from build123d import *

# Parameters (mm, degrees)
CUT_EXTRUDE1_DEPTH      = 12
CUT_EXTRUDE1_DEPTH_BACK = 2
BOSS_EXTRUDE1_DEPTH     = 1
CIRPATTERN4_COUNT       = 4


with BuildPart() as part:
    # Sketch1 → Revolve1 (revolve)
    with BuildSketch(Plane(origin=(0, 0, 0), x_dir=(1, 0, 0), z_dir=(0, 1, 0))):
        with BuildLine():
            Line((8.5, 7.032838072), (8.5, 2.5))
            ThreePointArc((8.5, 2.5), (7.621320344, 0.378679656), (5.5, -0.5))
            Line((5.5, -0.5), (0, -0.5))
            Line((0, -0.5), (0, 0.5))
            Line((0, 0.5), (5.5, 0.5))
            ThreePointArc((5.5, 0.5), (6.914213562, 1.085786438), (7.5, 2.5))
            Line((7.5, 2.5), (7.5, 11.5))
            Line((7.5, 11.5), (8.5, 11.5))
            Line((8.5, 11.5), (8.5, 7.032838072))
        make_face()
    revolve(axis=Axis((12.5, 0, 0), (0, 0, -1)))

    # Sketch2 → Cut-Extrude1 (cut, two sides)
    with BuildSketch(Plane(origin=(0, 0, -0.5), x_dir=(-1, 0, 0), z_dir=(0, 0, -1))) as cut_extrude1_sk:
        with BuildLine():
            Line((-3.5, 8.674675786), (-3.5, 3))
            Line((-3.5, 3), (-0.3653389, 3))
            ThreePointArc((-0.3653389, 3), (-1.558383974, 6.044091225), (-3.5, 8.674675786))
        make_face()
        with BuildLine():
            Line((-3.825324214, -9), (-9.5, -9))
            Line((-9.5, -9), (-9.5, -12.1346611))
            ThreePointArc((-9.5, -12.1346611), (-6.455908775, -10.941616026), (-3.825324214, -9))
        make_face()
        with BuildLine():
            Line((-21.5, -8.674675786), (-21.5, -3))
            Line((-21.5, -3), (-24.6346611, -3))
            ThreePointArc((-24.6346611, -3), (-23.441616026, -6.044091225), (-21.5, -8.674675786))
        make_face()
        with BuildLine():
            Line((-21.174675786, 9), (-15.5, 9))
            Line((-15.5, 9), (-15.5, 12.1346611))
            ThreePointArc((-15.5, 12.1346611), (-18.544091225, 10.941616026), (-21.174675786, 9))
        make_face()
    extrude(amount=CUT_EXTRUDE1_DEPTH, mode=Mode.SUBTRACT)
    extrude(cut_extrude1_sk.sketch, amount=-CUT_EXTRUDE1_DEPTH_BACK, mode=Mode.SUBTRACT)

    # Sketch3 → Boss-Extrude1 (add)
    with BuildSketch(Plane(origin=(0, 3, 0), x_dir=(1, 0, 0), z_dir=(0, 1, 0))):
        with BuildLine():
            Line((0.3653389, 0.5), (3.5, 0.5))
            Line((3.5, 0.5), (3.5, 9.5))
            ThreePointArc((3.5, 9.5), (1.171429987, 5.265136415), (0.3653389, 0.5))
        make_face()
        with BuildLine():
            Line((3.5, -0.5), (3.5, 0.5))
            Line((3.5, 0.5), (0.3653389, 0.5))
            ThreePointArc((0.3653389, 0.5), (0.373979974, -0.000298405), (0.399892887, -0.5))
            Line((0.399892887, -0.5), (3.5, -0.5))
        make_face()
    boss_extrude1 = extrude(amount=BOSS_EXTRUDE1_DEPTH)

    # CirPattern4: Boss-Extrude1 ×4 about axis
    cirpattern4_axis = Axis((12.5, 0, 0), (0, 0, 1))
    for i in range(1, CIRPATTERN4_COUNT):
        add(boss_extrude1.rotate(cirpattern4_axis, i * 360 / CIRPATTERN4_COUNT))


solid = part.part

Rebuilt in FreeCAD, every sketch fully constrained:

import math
import FreeCAD as App
import Part
import Sketcher
Q = App.Units.Quantity

doc = App.newDocument("Part")
body = doc.addObject("PartDesign::Body", "Body")

# Sketch on XZ plane
sketch1 = body.newObject("Sketcher::SketchObject", "Sketch")
sketch1.AttachmentSupport = (doc.getObject("XZ_Plane"), [""])
sketch1.MapMode = "FlatFace"
sketch1.addGeometry([
    Part.ArcOfCircle(Part.Circle(App.Vector(5.5, -2.5, 0), App.Vector(0, 0, 1), 3), math.radians(0), math.radians(90)),  # 0
    Part.LineSegment(App.Vector(8.5, -2.5, 0), App.Vector(8.5, -11.5, 0)),  # 1
    Part.LineSegment(App.Vector(8.5, -11.5, 0), App.Vector(7.5, -11.5, 0)),  # 2
    Part.LineSegment(App.Vector(7.5, -11.5, 0), App.Vector(7.5, -2.5, 0)),  # 3
    Part.ArcOfCircle(Part.Circle(App.Vector(5.5, -2.5, 0), App.Vector(0, 0, 1), 2), math.radians(0), math.radians(90)),  # 4
    Part.LineSegment(App.Vector(5.5, -0.5, 0), App.Vector(0, -0.5, 0)),  # 5
    Part.LineSegment(App.Vector(0, -0.5, 0), App.Vector(0, 0.5, 0)),  # 6
    Part.LineSegment(App.Vector(0, 0.5, 0), App.Vector(5.5, 0.5, 0)),  # 7
], False)
sketch1.addGeometry(Part.LineSegment(App.Vector(12.5, 0.5, 0), App.Vector(12.5, -11.5, 0)), True)  # axis
sketch1.addConstraint([
    Sketcher.Constraint("Tangent", 0, 1, 1, 1),
    Sketcher.Constraint("Coincident", 1, 2, 2, 1),
    Sketcher.Constraint("Coincident", 2, 2, 3, 1),
    Sketcher.Constraint("Tangent", 3, 2, 4, 1),
    Sketcher.Constraint("Tangent", 4, 2, 5, 1),
    Sketcher.Constraint("Coincident", 5, 2, 6, 1),
    Sketcher.Constraint("Coincident", 6, 2, 7, 1),
    Sketcher.Constraint("Tangent", 7, 2, 0, 2),
    Sketcher.Constraint("Vertical", 1),
    Sketcher.Constraint("Horizontal", 2),
    Sketcher.Constraint("Vertical", 3),
    Sketcher.Constraint("Horizontal", 5),
    Sketcher.Constraint("Vertical", 6),
    Sketcher.Constraint("Horizontal", 7),
    Sketcher.Constraint("Vertical", 8),
    Sketcher.Constraint("Coincident", 4, 3, 0, 3),
    Sketcher.Constraint("Symmetric", 5, 2, 6, 2, -1, 1),
    Sketcher.Constraint("Horizontal", 7, 2, 8, 1),
    Sketcher.Constraint("Horizontal", 2, 2, 8, 2),
    Sketcher.Constraint("Radius", 0, Q("3 mm")),
    Sketcher.Constraint("Radius", 4, Q("2 mm")),
    Sketcher.Constraint("DistanceY", 1, 2, 1, 1, Q("9 mm")),
    Sketcher.Constraint("DistanceX", 5, 2, 5, 1, Q("5.5 mm")),
    Sketcher.Constraint("DistanceX", 0, 1, 8, 1, Q("4 mm")),
])
revolution = body.newObject("PartDesign::Revolution", "Revolution")
revolution.Profile = sketch1
revolution.ReferenceAxis = (sketch1, ["Axis0"])
revolution.Angle = 360

# Sketch on XY plane
sketch2 = body.newObject("Sketcher::SketchObject", "Sketch001")
sketch2.AttachmentSupport = (doc.getObject("XY_Plane"), [""])
sketch2.MapMode = "FlatFace"
sketch2.AttachmentOffset = App.Placement(App.Vector(0, 0, -0.5), App.Rotation())
sketch2.addGeometry([
    Part.LineSegment(App.Vector(3.5, 8.7, 0), App.Vector(3.5, 3, 0)),  # 0
    Part.LineSegment(App.Vector(3.5, 3, 0), App.Vector(0.4, 3, 0)),  # 1
    Part.ArcOfCircle(Part.Circle(App.Vector(12.5, 0, 0), App.Vector(0, 0, 1), 12.5), math.radians(136), math.radians(166)),  # 2
    Part.LineSegment(App.Vector(3.8, -9, 0), App.Vector(9.5, -9, 0)),  # 3
    Part.LineSegment(App.Vector(9.5, -9, 0), App.Vector(9.5, -12.1, 0)),  # 4
    Part.ArcOfCircle(Part.Circle(App.Vector(12.5, 0, 0), App.Vector(0, 0, 1), 12.5), math.radians(-134), math.radians(-104)),  # 5
    Part.LineSegment(App.Vector(21.5, -8.7, 0), App.Vector(21.5, -3, 0)),  # 6
    Part.LineSegment(App.Vector(21.5, -3, 0), App.Vector(24.6, -3, 0)),  # 7
    Part.ArcOfCircle(Part.Circle(App.Vector(12.5, 0, 0), App.Vector(0, 0, 1), 12.5), math.radians(-44), math.radians(-14)),  # 8
    Part.LineSegment(App.Vector(21.2, 9, 0), App.Vector(15.5, 9, 0)),  # 9
    Part.LineSegment(App.Vector(15.5, 9, 0), App.Vector(15.5, 12.1, 0)),  # 10
    Part.ArcOfCircle(Part.Circle(App.Vector(12.5, 0, 0), App.Vector(0, 0, 1), 12.5), math.radians(46), math.radians(76)),  # 11
], False)
sketch2.addConstraint([
    Sketcher.Constraint("Coincident", 0, 2, 1, 1),
    Sketcher.Constraint("Coincident", 1, 2, 2, 2),
    Sketcher.Constraint("Coincident", 2, 1, 0, 1),
    Sketcher.Constraint("Coincident", 3, 2, 4, 1),
    Sketcher.Constraint("Coincident", 4, 2, 5, 2),
    Sketcher.Constraint("Coincident", 5, 1, 3, 1),
    Sketcher.Constraint("Coincident", 6, 2, 7, 1),
    Sketcher.Constraint("Coincident", 7, 2, 8, 2),
    Sketcher.Constraint("Coincident", 8, 1, 6, 1),
    Sketcher.Constraint("Coincident", 9, 2, 10, 1),
    Sketcher.Constraint("Coincident", 10, 2, 11, 2),
    Sketcher.Constraint("Coincident", 11, 1, 9, 1),
    Sketcher.Constraint("Vertical", 0),
    Sketcher.Constraint("Horizontal", 1),
    Sketcher.Constraint("Horizontal", 3),
    Sketcher.Constraint("Vertical", 4),
    Sketcher.Constraint("Vertical", 6),
    Sketcher.Constraint("Horizontal", 7),
    Sketcher.Constraint("Horizontal", 9),
    Sketcher.Constraint("Vertical", 10),
    Sketcher.Constraint("Coincident", 5, 3, 2, 3),
    Sketcher.Constraint("Coincident", 8, 3, 2, 3),
    Sketcher.Constraint("Coincident", 11, 3, 2, 3),
    Sketcher.Constraint("Equal", 2, 5),
    Sketcher.Constraint("Equal", 5, 8),
    Sketcher.Constraint("Equal", 8, 11),
    Sketcher.Constraint("PointOnObject", 2, 3, -1),
    Sketcher.Constraint("Equal", 1, 7),
    Sketcher.Constraint("Equal", 3, 9),
    Sketcher.Constraint("Equal", 9, 0),
    Sketcher.Constraint("Equal", 7, 4),
    Sketcher.Constraint("Equal", 0, 6),
    Sketcher.Constraint("Equal", 4, 10),
    Sketcher.Constraint("Radius", 2, Q("12.5 mm")),
    Sketcher.Constraint("DistanceY", -1, 1, 0, 2, Q("3 mm")),
    Sketcher.Constraint("DistanceY", 3, 2, -1, 1, Q("9 mm")),
    Sketcher.Constraint("DistanceX", -1, 1, 2, 3, Q("12.5 mm")),
])
pocket1 = body.newObject("PartDesign::Pocket", "Pocket")
pocket1.Profile = sketch2
pocket1.Type = "ThroughAll"
pocket1.Midplane = True

# Sketch on XZ plane
sketch3 = body.newObject("Sketcher::SketchObject", "Sketch002")
sketch3.AttachmentSupport = (doc.getObject("XZ_Plane"), [""])
sketch3.MapMode = "FlatFace"
sketch3.AttachmentOffset = App.Placement(App.Vector(0, 0, -3), App.Rotation())
sketch3.addGeometry([
    Part.ArcOfCircle(Part.Circle(App.Vector(14.9, -0.5, 0), App.Vector(0, 0, 1), 14.5), math.radians(-180), math.radians(-142)),
    Part.ArcOfCircle(Part.Circle(App.Vector(14.9, -0.5, 0), App.Vector(0, 0, 1), 14.5), math.radians(176.04), math.radians(180)),
    Part.LineSegment(App.Vector(0.4, 0.5, 0), App.Vector(3.5, 0.5, 0)),
    Part.LineSegment(App.Vector(3.5, 0.5, 0), App.Vector(3.5, -9.5, 0)),
], False)
sketch3.addConstraint([
    Sketcher.Constraint("Tangent", 0, 1, 1, 2),
    Sketcher.Constraint("Coincident", 1, 1, 2, 1),
    Sketcher.Constraint("Coincident", 2, 2, 3, 1),
    Sketcher.Constraint("Coincident", 3, 2, 0, 2),
    Sketcher.Constraint("Horizontal", 2),
    Sketcher.Constraint("Vertical", 3),
    Sketcher.Constraint("Equal", 0, 1),
    Sketcher.Constraint("Horizontal", 1, 3, 0, 1),
    Sketcher.Constraint("DistanceY", 3, 2, 3, 1, Q("10 mm")),
    Sketcher.Constraint("DistanceY", 0, 1, 1, 1, Q("1 mm")),
    Sketcher.Constraint("DistanceY", 0, 3, -1, 1, Q("0.5 mm")),
    Sketcher.Constraint("DistanceX", -1, 1, 2, 2, Q("3.5 mm")),
    Sketcher.Constraint("Radius", 0, Q("14.487388 mm")),
])
pad1 = body.newObject("PartDesign::Pad", "Pad")
pad1.Profile = sketch3
pad1.Length = 1
pad1.Reversed = True
doc.recompute()

datumline = body.newObject("PartDesign::Line", "DatumLine")
datumline.Placement = App.Placement(App.Vector(12.5, 0, 0), App.Rotation(App.Vector(0, 0, 1), App.Vector(0, 0, 1)))
polarpattern = body.newObject("PartDesign::PolarPattern", "PolarPattern")
polarpattern.Originals = [pad1]
polarpattern.Axis = (datumline, [""])
polarpattern.Angle = 360
polarpattern.Occurrences = 4
body.Tip = polarpattern

doc.recompute()
